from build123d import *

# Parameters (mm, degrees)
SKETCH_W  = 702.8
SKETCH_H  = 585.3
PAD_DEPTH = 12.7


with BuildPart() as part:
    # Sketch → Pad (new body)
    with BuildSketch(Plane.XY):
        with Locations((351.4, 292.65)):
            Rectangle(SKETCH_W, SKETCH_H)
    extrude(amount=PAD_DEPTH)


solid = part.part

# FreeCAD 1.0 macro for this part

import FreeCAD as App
import Part
import Sketcher
from FreeCAD import Vector
Q = App.Units.Quantity


def add_polygon(sketch, points):
    """Adds a closed chain of lines whose ends are joined by coincident constraints."""
    first, n = sketch.GeometryCount, len(points)
    for a, b in zip(points, points[1:] + points[:1]):
        sketch.addGeometry(Part.LineSegment(App.Vector(*a, 0), App.Vector(*b, 0)), False)
    for i in range(n):
        sketch.addConstraint(Sketcher.Constraint("Coincident", first + i, 2, first + (i + 1) % n, 1))

doc = App.newDocument("Part")
body = doc.addObject("PartDesign::Body", "Body")

# Sketch on XY plane
sketch1 = body.newObject("Sketcher::SketchObject", "Sketch")
sketch1.AttachmentSupport = (doc.getObject("XY_Plane"), [""])
sketch1.MapMode = "FlatFace"
add_polygon(sketch1, [(0, 585), (0, 0), (703, 0), (703, 585)])  # lines 0-3
sketch1.addConstraint(Sketcher.Constraint("Vertical", 0))
sketch1.addConstraint(Sketcher.Constraint("Horizontal", 1))
sketch1.addConstraint(Sketcher.Constraint("Vertical", 2))
sketch1.addConstraint(Sketcher.Constraint("Horizontal", 3))
sketch1.addConstraint(Sketcher.Constraint("Coincident", 0, 2, -1, 1))
sketch1.addConstraint(Sketcher.Constraint("DistanceX", 1, 1, 1, 2, Q("702.8 mm")))
sketch1.addConstraint(Sketcher.Constraint("DistanceY", 0, 2, 0, 1, Q("585.3 mm")))
pad1 = body.newObject("PartDesign::Pad", "Pad")
pad1.Profile = sketch1
pad1.Length = 12.7

doc.recompute()
